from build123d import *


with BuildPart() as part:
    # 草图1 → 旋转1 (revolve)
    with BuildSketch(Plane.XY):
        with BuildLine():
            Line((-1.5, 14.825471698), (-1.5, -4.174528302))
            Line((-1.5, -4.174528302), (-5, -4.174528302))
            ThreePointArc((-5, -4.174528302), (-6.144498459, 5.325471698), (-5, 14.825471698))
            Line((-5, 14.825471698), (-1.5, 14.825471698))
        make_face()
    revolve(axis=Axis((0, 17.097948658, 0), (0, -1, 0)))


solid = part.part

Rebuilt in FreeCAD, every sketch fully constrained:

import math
import FreeCAD as App
import Part
import Sketcher

V = App.Vector
Q = App.Units.Quantity

doc = App.newDocument("Part")
params = doc.addObject("Spreadsheet::Sheet", "Params")
for row, (alias, value) in enumerate([
    ("sketch1_radius", "40 mm"),
    ("sketch1_height", "19 mm"),
    ("sketch1_width", "3.5 mm"),
    ("revolution_angle", "360 deg"),
], start=1):
    params.set(f"A{row}", alias)
    params.set(f"B{row}", "=" + value)
    params.setAlias(f"B{row}", alias)

body = doc.addObject("PartDesign::Body", "Body")

# Sketch on XY plane
sketch1 = doc.addObject("Sketcher::SketchObject", "Sketch")
body.addObject(sketch1)
sketch1.AttachmentSupport = (doc.XY_Plane, [""])
sketch1.MapMode = "FlatFace"
sketch1.addGeometry([
    Part.LineSegment(V(-1.5, -4.2, 0), V(-1.5, 14.8, 0)),
    Part.LineSegment(V(-1.5, 14.8, 0), V(-5, 14.8, 0)),
    Part.ArcOfCircle(Part.Circle(V(33.9, 5.3, 0), V(0, 0, 1), 40), math.radians(166), math.radians(194)),
    Part.LineSegment(V(-5, -4.2, 0), V(-1.5, -4.2, 0)),
], False)
sketch1.addConstraint([
    Sketcher.Constraint("Coincident", 0, 2, 1, 1),
    Sketcher.Constraint("Coincident", 1, 2, 2, 1),
    Sketcher.Constraint("Coincident", 2, 2, 3, 1),
    Sketcher.Constraint("Coincident", 3, 2, 0, 1),
    Sketcher.Constraint("Vertical", 0),
    Sketcher.Constraint("Horizontal", 1),
    Sketcher.Constraint("Horizontal", 3),
    Sketcher.Constraint("Vertical", 1, 2, 2, 2),
    Sketcher.Constraint("Radius", 2, Q("40 mm")),
    Sketcher.Constraint("DistanceY", 0, 1, 0, 2, Q("19 mm")),
    Sketcher.Constraint("DistanceX", 1, 2, 1, 1, Q("3.5 mm")),
    Sketcher.Constraint("DistanceX", 1, 2, -1, 1, Q("5 mm")),
    Sketcher.Constraint("DistanceY", -1, 1, 2, 3, Q("5.325472 mm")),
])
sketch1.setExpression("Constraints[8]", "Params.sketch1_radius")
sketch1.setExpression("Constraints[9]", "Params.sketch1_height")
sketch1.setExpression("Constraints[10]", "Params.sketch1_width")
revolution = doc.addObject("PartDesign::Revolution", "Revolution")
body.addObject(revolution)
revolution.Profile = sketch1
revolution.ReferenceAxis = (sketch1, ["V_Axis"])
revolution.setExpression("Angle", "Params.revolution_angle")

doc.recompute()
